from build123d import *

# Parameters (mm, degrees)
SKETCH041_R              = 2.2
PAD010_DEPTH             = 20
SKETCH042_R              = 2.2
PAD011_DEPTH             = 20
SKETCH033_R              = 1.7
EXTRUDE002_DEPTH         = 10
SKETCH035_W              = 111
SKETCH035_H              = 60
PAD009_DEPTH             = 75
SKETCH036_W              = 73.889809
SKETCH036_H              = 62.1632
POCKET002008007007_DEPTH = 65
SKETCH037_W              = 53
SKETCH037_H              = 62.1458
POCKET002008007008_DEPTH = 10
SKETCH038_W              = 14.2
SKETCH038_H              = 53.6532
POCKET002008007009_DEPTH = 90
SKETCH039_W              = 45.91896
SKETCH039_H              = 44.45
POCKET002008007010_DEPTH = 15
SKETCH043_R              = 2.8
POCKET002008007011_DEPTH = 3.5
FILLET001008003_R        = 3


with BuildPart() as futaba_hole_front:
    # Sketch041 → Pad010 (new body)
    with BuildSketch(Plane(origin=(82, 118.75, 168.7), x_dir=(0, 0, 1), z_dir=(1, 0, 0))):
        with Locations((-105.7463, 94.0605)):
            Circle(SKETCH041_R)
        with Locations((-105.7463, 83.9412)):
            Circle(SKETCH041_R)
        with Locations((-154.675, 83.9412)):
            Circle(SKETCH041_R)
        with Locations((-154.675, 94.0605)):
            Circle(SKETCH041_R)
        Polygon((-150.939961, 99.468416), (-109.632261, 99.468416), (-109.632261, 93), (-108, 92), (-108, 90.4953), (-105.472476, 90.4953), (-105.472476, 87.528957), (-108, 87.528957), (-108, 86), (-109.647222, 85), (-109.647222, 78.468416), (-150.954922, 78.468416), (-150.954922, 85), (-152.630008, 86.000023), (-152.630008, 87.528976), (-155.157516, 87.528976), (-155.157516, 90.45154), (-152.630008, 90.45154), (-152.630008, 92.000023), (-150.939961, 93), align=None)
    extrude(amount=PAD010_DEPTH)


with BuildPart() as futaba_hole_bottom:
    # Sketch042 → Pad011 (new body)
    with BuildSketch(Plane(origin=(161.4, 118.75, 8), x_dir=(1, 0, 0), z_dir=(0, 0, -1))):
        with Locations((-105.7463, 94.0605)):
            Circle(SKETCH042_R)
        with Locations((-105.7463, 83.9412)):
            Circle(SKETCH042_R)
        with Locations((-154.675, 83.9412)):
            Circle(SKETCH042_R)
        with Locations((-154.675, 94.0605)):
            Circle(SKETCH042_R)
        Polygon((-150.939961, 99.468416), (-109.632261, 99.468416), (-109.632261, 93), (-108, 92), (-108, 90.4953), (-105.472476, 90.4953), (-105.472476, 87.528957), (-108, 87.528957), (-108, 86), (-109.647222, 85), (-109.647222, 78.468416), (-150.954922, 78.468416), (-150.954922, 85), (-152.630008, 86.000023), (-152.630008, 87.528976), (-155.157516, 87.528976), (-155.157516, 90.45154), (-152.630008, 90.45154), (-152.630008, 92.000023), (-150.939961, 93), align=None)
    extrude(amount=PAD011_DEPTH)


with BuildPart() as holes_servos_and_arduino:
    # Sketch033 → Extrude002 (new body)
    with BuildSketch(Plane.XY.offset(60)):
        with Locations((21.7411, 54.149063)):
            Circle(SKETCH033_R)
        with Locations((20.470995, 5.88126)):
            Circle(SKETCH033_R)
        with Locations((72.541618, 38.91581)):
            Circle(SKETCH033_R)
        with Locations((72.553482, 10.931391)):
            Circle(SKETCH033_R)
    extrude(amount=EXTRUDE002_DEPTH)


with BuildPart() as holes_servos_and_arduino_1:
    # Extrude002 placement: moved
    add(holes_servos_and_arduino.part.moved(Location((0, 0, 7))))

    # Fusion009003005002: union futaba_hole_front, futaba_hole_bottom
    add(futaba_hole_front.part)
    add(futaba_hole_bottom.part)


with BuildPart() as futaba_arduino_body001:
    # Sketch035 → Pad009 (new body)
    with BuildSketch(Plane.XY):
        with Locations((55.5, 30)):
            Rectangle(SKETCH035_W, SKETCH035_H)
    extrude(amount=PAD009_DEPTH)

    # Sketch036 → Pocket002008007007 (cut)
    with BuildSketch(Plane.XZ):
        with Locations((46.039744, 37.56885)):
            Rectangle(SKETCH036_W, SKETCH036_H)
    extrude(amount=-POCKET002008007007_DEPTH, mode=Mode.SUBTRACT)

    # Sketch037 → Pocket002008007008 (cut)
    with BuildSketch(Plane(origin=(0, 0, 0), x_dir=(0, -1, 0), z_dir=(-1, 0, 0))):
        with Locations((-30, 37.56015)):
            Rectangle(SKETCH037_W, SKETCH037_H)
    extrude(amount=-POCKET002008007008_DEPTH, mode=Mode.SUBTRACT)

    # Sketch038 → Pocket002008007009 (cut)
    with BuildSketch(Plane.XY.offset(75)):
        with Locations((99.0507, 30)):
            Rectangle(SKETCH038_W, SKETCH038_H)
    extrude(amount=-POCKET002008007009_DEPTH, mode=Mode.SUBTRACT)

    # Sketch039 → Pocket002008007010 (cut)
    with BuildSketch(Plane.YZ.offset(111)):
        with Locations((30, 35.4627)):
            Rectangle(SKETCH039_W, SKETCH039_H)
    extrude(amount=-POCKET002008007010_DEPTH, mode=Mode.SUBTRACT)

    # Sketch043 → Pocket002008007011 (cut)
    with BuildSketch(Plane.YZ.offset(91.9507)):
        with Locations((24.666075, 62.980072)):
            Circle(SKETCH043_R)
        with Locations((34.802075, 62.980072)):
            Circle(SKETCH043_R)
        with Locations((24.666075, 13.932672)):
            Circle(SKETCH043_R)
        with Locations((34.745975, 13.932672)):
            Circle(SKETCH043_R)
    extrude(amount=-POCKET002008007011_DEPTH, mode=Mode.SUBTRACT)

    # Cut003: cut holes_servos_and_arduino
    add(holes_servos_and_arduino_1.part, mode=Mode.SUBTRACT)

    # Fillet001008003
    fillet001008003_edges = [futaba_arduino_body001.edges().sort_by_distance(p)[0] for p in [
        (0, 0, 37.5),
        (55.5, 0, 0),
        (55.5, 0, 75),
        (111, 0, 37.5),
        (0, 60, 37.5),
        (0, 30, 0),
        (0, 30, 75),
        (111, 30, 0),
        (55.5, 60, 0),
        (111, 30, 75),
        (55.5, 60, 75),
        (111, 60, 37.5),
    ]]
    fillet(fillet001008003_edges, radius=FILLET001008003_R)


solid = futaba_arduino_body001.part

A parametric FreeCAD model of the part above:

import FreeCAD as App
import Part
import Sketcher

V = App.Vector
Q = App.Units.Quantity


def edges_at(feature, points):
    """Names of the edges that pass closest to the given points."""
    edges = feature.Shape.Edges
    near = lambda p: min(range(len(edges)), key=lambda i: edges[i].distToShape(Part.Vertex(*p))[0])
    return sorted({f"Edge{near(p) + 1}" for p in points})

doc = App.newDocument("Part")
body = doc.addObject("PartDesign::Body", "Body")
body.AllowCompound = True

# Sketch on YZ plane
sketch1 = body.newObject("Sketcher::SketchObject", "Sketch")
sketch1.AttachmentSupport = (doc.getObject("YZ_Plane"), [""])
sketch1.MapMode = "FlatFace"
sketch1.AttachmentOffset = App.Placement(V(0, 0, 82), App.Rotation())
sketch1.addGeometry(Part.Circle(V(24.7, 63, 0), V(0, 0, 1), 2.2), False)
sketch1.addGeometry(Part.Circle(V(34.8, 63, 0), V(0, 0, 1), 2.2), False)
sketch1.addGeometry(Part.Circle(V(34.8, 14, 0), V(0, 0, 1), 2.2), False)
sketch1.addGeometry(Part.Circle(V(24.7, 14, 0), V(0, 0, 1), 2.2), False)
sketch1.addGeometry(Part.LineSegment(V(19.3, 59.1, 0), V(19.3, 17.8, 0)), False)
sketch1.addGeometry(Part.LineSegment(V(19.3, 17.8, 0), V(25.8, 17.8, 0)), False)
sketch1.addGeometry(Part.LineSegment(V(25.8, 17.8, 0), V(26.7, 16.1, 0)), False)
sketch1.addGeometry(Part.LineSegment(V(26.7, 16.1, 0), V(28.3, 16.1, 0)), False)
sketch1.addGeometry(Part.LineSegment(V(28.3, 16.1, 0), V(28.3, 13.5, 0)), False)
sketch1.addGeometry(Part.LineSegment(V(28.3, 13.5, 0), V(31.2, 13.5, 0)), False)
sketch1.addGeometry(Part.LineSegment(V(31.2, 13.5, 0), V(31.2, 16.1, 0)), False)
sketch1.addGeometry(Part.LineSegment(V(31.2, 16.1, 0), V(32.7, 16.1, 0)), False)
sketch1.addGeometry(Part.LineSegment(V(32.7, 16.1, 0), V(33.8, 17.7, 0)), False)
sketch1.addGeometry(Part.LineSegment(V(33.8, 17.7, 0), V(40.3, 17.7, 0)), False)
sketch1.addGeometry(Part.LineSegment(V(40.3, 17.7, 0), V(40.3, 59.1, 0)), False)
sketch1.addGeometry(Part.LineSegment(V(40.3, 59.1, 0), V(33.8, 59.1, 0)), False)
sketch1.addGeometry(Part.LineSegment(V(33.8, 59.1, 0), V(32.8, 60.7, 0)), False)
sketch1.addGeometry(Part.LineSegment(V(32.8, 60.7, 0), V(31.2, 60.7, 0)), False)
sketch1.addGeometry(Part.LineSegment(V(31.2, 60.7, 0), V(31.2, 63.2, 0)), False)
sketch1.addGeometry(Part.LineSegment(V(31.2, 63.2, 0), V(28.3, 63.2, 0)), False)
sketch1.addGeometry(Part.LineSegment(V(28.3, 63.2, 0), V(28.3, 60.7, 0)), False)
sketch1.addGeometry(Part.LineSegment(V(28.3, 60.7, 0), V(26.8, 60.7, 0)), False)
sketch1.addGeometry(Part.LineSegment(V(26.8, 60.7, 0), V(25.8, 59.1, 0)), False)
sketch1.addGeometry(Part.LineSegment(V(25.8, 59.1, 0), V(19.3, 59.1, 0)), False)
sketch1.addConstraint(Sketcher.Constraint("Coincident", 4, 2, 5, 1))
sketch1.addConstraint(Sketcher.Constraint("Coincident", 5, 2, 6, 1))
sketch1.addConstraint(Sketcher.Constraint("Coincident", 6, 2, 7, 1))
sketch1.addConstraint(Sketcher.Constraint("Coincident", 7, 2, 8, 1))
sketch1.addConstraint(Sketcher.Constraint("Coincident", 8, 2, 9, 1))
sketch1.addConstraint(Sketcher.Constraint("Coincident", 9, 2, 10, 1))
sketch1.addConstraint(Sketcher.Constraint("Coincident", 10, 2, 11, 1))
sketch1.addConstraint(Sketcher.Constraint("Coincident", 11, 2, 12, 1))
sketch1.addConstraint(Sketcher.Constraint("Coincident", 12, 2, 13, 1))
sketch1.addConstraint(Sketcher.Constraint("Coincident", 13, 2, 14, 1))
sketch1.addConstraint(Sketcher.Constraint("Coincident", 14, 2, 15, 1))
sketch1.addConstraint(Sketcher.Constraint("Coincident", 15, 2, 16, 1))
sketch1.addConstraint(Sketcher.Constraint("Coincident", 16, 2, 17, 1))
sketch1.addConstraint(Sketcher.Constraint("Coincident", 17, 2, 18, 1))
sketch1.addConstraint(Sketcher.Constraint("Coincident", 18, 2, 19, 1))
sketch1.addConstraint(Sketcher.Constraint("Coincident", 19, 2, 20, 1))
sketch1.addConstraint(Sketcher.Constraint("Coincident", 20, 2, 21, 1))
sketch1.addConstraint(Sketcher.Constraint("Coincident", 21, 2, 22, 1))
sketch1.addConstraint(Sketcher.Constraint("Coincident", 22, 2, 23, 1))
sketch1.addConstraint(Sketcher.Constraint("Coincident", 23, 2, 4, 1))
sketch1.addConstraint(Sketcher.Constraint("Vertical", 4))
sketch1.addConstraint(Sketcher.Constraint("Horizontal", 5))
sketch1.addConstraint(Sketcher.Constraint("Horizontal", 7))
sketch1.addConstraint(Sketcher.Constraint("Vertical", 8))
sketch1.addConstraint(Sketcher.Constraint("Horizontal", 9))
sketch1.addConstraint(Sketcher.Constraint("Vertical", 10))
sketch1.addConstraint(Sketcher.Constraint("Horizontal", 11))
sketch1.addConstraint(Sketcher.Constraint("Horizontal", 13))
sketch1.addConstraint(Sketcher.Constraint("Vertical", 14))
sketch1.addConstraint(Sketcher.Constraint("Horizontal", 15))
sketch1.addConstraint(Sketcher.Constraint("Horizontal", 17))
sketch1.addConstraint(Sketcher.Constraint("Vertical", 18))
sketch1.addConstraint(Sketcher.Constraint("Horizontal", 19))
sketch1.addConstraint(Sketcher.Constraint("Vertical", 20))
sketch1.addConstraint(Sketcher.Constraint("Horizontal", 21))
sketch1.addConstraint(Sketcher.Constraint("Horizontal", 23))
sketch1.addConstraint(Sketcher.Constraint("Equal", 0, 1))
sketch1.addConstraint(Sketcher.Constraint("Equal", 1, 2))
sketch1.addConstraint(Sketcher.Constraint("Equal", 2, 3))
sketch1.addConstraint(Sketcher.Constraint("Horizontal", 0, 3, 1, 3))
sketch1.addConstraint(Sketcher.Constraint("Horizontal", 2, 3, 3, 3))
sketch1.addConstraint(Sketcher.Constraint("Horizontal", 7, 2, 10, 2))
sketch1.addConstraint(Sketcher.Constraint("Horizontal", 17, 2, 20, 2))
sketch1.addConstraint(Sketcher.Constraint("Vertical", 1, 3, 2, 3))
sketch1.addConstraint(Sketcher.Constraint("Vertical", 0, 3, 3, 3))
sketch1.addConstraint(Sketcher.Constraint("Vertical", 12, 2, 15, 2))
sketch1.addConstraint(Sketcher.Constraint("Vertical", 5, 2, 22, 2))
sketch1.addConstraint(Sketcher.Constraint("Equal", 4, 14))
sketch1.addConstraint(Sketcher.Constraint("Diameter", 0, Q("4.4 mm")))
sketch1.addConstraint(Sketcher.Constraint("DistanceX", 16, 2, 15, 2, Q("1 mm")))
sketch1.addConstraint(Sketcher.Constraint("DistanceX", 22, 2, 21, 2, Q("1 mm")))
sketch1.addConstraint(Sketcher.Constraint("DistanceY", -1, 1, 16, 2, Q("60.7 mm")))
sketch1.addConstraint(Sketcher.Constraint("DistanceX", -1, 1, 5, 2, Q("25.75 mm")))
sketch1.addConstraint(Sketcher.Constraint("DistanceX", -1, 1, 12, 2, Q("33.75 mm")))
sketch1.addConstraint(Sketcher.Constraint("DistanceX", 21, 2, 21, 1, Q("1.5047 mm")))
sketch1.addConstraint(Sketcher.Constraint("DistanceY", 4, 2, 4, 1, Q("41.3077 mm")))
sketch1.addConstraint(Sketcher.Constraint("DistanceY", -1, 1, 2, 3, Q("14.025 mm")))
sketch1.addConstraint(Sketcher.Constraint("DistanceX", -1, 1, 0, 3, Q("24.6895 mm")))
sketch1.addConstraint(Sketcher.Constraint("DistanceY", -1, 1, 0, 3, Q("62.9537 mm")))
sketch1.addConstraint(Sketcher.Constraint("DistanceX", -1, 1, 1, 3, Q("34.8088 mm")))
sketch1.addConstraint(Sketcher.Constraint("Distance", 22, Q("1.91423 mm")))
sketch1.addConstraint(Sketcher.Constraint("DistanceX", 5, 1, 5, 2, Q("6.468416 mm")))
sketch1.addConstraint(Sketcher.Constraint("DistanceX", 7, 1, 7, 2, Q("1.548483 mm")))
sketch1.addConstraint(Sketcher.Constraint("DistanceX", 9, 1, 9, 2, Q("2.922564 mm")))
sketch1.addConstraint(Sketcher.Constraint("DistanceX", 11, 1, 11, 2, Q("1.528953 mm")))
sketch1.addConstraint(Sketcher.Constraint("DistanceX", 13, 1, 13, 2, Q("6.531584 mm")))
sketch1.addConstraint(Sketcher.Constraint("DistanceX", 17, 2, 17, 1, Q("1.528957 mm")))
sketch1.addConstraint(Sketcher.Constraint("DistanceY", 8, 2, 8, 1, Q("2.527508 mm")))
sketch1.addConstraint(Sketcher.Constraint("DistanceY", 18, 1, 18, 2, Q("2.527524 mm")))
sketch1.addConstraint(Sketcher.Constraint("DistanceY", -1, 1, 6, 2, Q("16.069992 mm")))
sketch1.addConstraint(Sketcher.Constraint("DistanceX", -1, 1, 7, 2, Q("28.29846 mm")))
sketch1.addConstraint(Sketcher.Constraint("DistanceY", -1, 1, 14, 2, Q("59.052778 mm")))
pad1 = body.newObject("PartDesign::Pad", "Pad")
pad1.Profile = sketch1
pad1.Length = 20
body2 = doc.addObject("PartDesign::Body", "Body001")
body2.AllowCompound = True

# Sketch on XY plane
sketch2 = body2.newObject("Sketcher::SketchObject", "Sketch001")
sketch2.AttachmentSupport = (doc.getObject("XY_Plane001"), [""])
sketch2.MapMode = "FlatFace"
sketch2.AttachmentOffset = App.Placement(V(0, 0, 8), App.Rotation())
sketch2.addGeometry(Part.Circle(V(55.7, 24.7, 0), V(0, 0, 1), 2.2), False)
sketch2.addGeometry(Part.Circle(V(55.7, 34.8, 0), V(0, 0, 1), 2.2), False)
sketch2.addGeometry(Part.Circle(V(6.7, 34.8, 0), V(0, 0, 1), 2.2), False)
sketch2.addGeometry(Part.Circle(V(6.7, 24.7, 0), V(0, 0, 1), 2.2), False)
sketch2.addGeometry(Part.LineSegment(V(51.8, 19.3, 0), V(10.5, 19.3, 0)), False)
sketch2.addGeometry(Part.LineSegment(V(10.5, 19.3, 0), V(10.5, 25.8, 0)), False)
sketch2.addGeometry(Part.LineSegment(V(10.5, 25.8, 0), V(8.8, 26.7, 0)), False)
sketch2.addGeometry(Part.LineSegment(V(8.8, 26.7, 0), V(8.8, 28.3, 0)), False)
sketch2.addGeometry(Part.LineSegment(V(8.8, 28.3, 0), V(6.2, 28.3, 0)), False)
sketch2.addGeometry(Part.LineSegment(V(6.2, 28.3, 0), V(6.2, 31.2, 0)), False)
sketch2.addGeometry(Part.LineSegment(V(6.2, 31.2, 0), V(8.8, 31.2, 0)), False)
sketch2.addGeometry(Part.LineSegment(V(8.8, 31.2, 0), V(8.8, 32.7, 0)), False)
sketch2.addGeometry(Part.LineSegment(V(8.8, 32.7, 0), V(10.4, 33.8, 0)), False)
sketch2.addGeometry(Part.LineSegment(V(10.4, 33.8, 0), V(10.4, 40.3, 0)), False)
sketch2.addGeometry(Part.LineSegment(V(10.4, 40.3, 0), V(51.8, 40.3, 0)), False)
sketch2.addGeometry(Part.LineSegment(V(51.8, 40.3, 0), V(51.8, 33.8, 0)), False)
sketch2.addGeometry(Part.LineSegment(V(51.8, 33.8, 0), V(53.4, 32.8, 0)), False)
sketch2.addGeometry(Part.LineSegment(V(53.4, 32.8, 0), V(53.4, 31.2, 0)), False)
sketch2.addGeometry(Part.LineSegment(V(53.4, 31.2, 0), V(55.9, 31.2, 0)), False)
sketch2.addGeometry(Part.LineSegment(V(55.9, 31.2, 0), V(55.9, 28.3, 0)), False)
sketch2.addGeometry(Part.LineSegment(V(55.9, 28.3, 0), V(53.4, 28.3, 0)), False)
sketch2.addGeometry(Part.LineSegment(V(53.4, 28.3, 0), V(53.4, 26.8, 0)), False)
sketch2.addGeometry(Part.LineSegment(V(53.4, 26.8, 0), V(51.8, 25.8, 0)), False)
sketch2.addGeometry(Part.LineSegment(V(51.8, 25.8, 0), V(51.8, 19.3, 0)), False)
sketch2.addConstraint(Sketcher.Constraint("Coincident", 4, 2, 5, 1))
sketch2.addConstraint(Sketcher.Constraint("Coincident", 5, 2, 6, 1))
sketch2.addConstraint(Sketcher.Constraint("Coincident", 6, 2, 7, 1))
sketch2.addConstraint(Sketcher.Constraint("Coincident", 7, 2, 8, 1))
sketch2.addConstraint(Sketcher.Constraint("Coincident", 8, 2, 9, 1))
sketch2.addConstraint(Sketcher.Constraint("Coincident", 9, 2, 10, 1))
sketch2.addConstraint(Sketcher.Constraint("Coincident", 10, 2, 11, 1))
sketch2.addConstraint(Sketcher.Constraint("Coincident", 11, 2, 12, 1))
sketch2.addConstraint(Sketcher.Constraint("Coincident", 12, 2, 13, 1))
sketch2.addConstraint(Sketcher.Constraint("Coincident", 13, 2, 14, 1))
sketch2.addConstraint(Sketcher.Constraint("Coincident", 14, 2, 15, 1))
sketch2.addConstraint(Sketcher.Constraint("Coincident", 15, 2, 16, 1))
sketch2.addConstraint(Sketcher.Constraint("Coincident", 16, 2, 17, 1))
sketch2.addConstraint(Sketcher.Constraint("Coincident", 17, 2, 18, 1))
sketch2.addConstraint(Sketcher.Constraint("Coincident", 18, 2, 19, 1))
sketch2.addConstraint(Sketcher.Constraint("Coincident", 19, 2, 20, 1))
sketch2.addConstraint(Sketcher.Constraint("Coincident", 20, 2, 21, 1))
sketch2.addConstraint(Sketcher.Constraint("Coincident", 21, 2, 22, 1))
sketch2.addConstraint(Sketcher.Constraint("Coincident", 22, 2, 23, 1))
sketch2.addConstraint(Sketcher.Constraint("Coincident", 23, 2, 4, 1))
sketch2.addConstraint(Sketcher.Constraint("Horizontal", 4))
sketch2.addConstraint(Sketcher.Constraint("Vertical", 5))
sketch2.addConstraint(Sketcher.Constraint("Vertical", 7))
sketch2.addConstraint(Sketcher.Constraint("Horizontal", 8))
sketch2.addConstraint(Sketcher.Constraint("Vertical", 9))
sketch2.addConstraint(Sketcher.Constraint("Horizontal", 10))
sketch2.addConstraint(Sketcher.Constraint("Vertical", 11))
sketch2.addConstraint(Sketcher.Constraint("Vertical", 13))
sketch2.addConstraint(Sketcher.Constraint("Horizontal", 14))
sketch2.addConstraint(Sketcher.Constraint("Vertical", 15))
sketch2.addConstraint(Sketcher.Constraint("Vertical", 17))
sketch2.addConstraint(Sketcher.Constraint("Horizontal", 18))
sketch2.addConstraint(Sketcher.Constraint("Vertical", 19))
sketch2.addConstraint(Sketcher.Constraint("Horizontal", 20))
sketch2.addConstraint(Sketcher.Constraint("Vertical", 21))
sketch2.addConstraint(Sketcher.Constraint("Vertical", 23))
sketch2.addConstraint(Sketcher.Constraint("Equal", 0, 1))
sketch2.addConstraint(Sketcher.Constraint("Equal", 1, 2))
sketch2.addConstraint(Sketcher.Constraint("Equal", 2, 3))
sketch2.addConstraint(Sketcher.Constraint("Horizontal", 1, 3, 2, 3))
sketch2.addConstraint(Sketcher.Constraint("Horizontal", 0, 3, 3, 3))
sketch2.addConstraint(Sketcher.Constraint("Horizontal", 12, 2, 15, 2))
sketch2.addConstraint(Sketcher.Constraint("Horizontal", 5, 2, 22, 2))
sketch2.addConstraint(Sketcher.Constraint("Vertical", 0, 3, 1, 3))
sketch2.addConstraint(Sketcher.Constraint("Vertical", 2, 3, 3, 3))
sketch2.addConstraint(Sketcher.Constraint("Vertical", 7, 2, 10, 2))
sketch2.addConstraint(Sketcher.Constraint("Vertical", 17, 2, 20, 2))
sketch2.addConstraint(Sketcher.Constraint("Equal", 4, 14))
sketch2.addConstraint(Sketcher.Constraint("Diameter", 0, Q("4.4 mm")))
sketch2.addConstraint(Sketcher.Constraint("DistanceY", 16, 2, 15, 2, Q("1 mm")))
sketch2.addConstraint(Sketcher.Constraint("DistanceY", 22, 2, 21, 2, Q("1 mm")))
sketch2.addConstraint(Sketcher.Constraint("DistanceX", -1, 1, 16, 2, Q("53.4 mm")))
sketch2.addConstraint(Sketcher.Constraint("DistanceY", -1, 1, 5, 2, Q("25.75 mm")))
sketch2.addConstraint(Sketcher.Constraint("DistanceY", -1, 1, 12, 2, Q("33.75 mm")))
sketch2.addConstraint(Sketcher.Constraint("DistanceX", 4, 2, 4, 1, Q("41.3077 mm")))
sketch2.addConstraint(Sketcher.Constraint("DistanceY", 21, 2, 21, 1, Q("1.5047 mm")))
sketch2.addConstraint(Sketcher.Constraint("DistanceX", -1, 1, 2, 3, Q("6.725 mm")))
sketch2.addConstraint(Sketcher.Constraint("DistanceX", 8, 2, 8, 1, Q("2.527508 mm")))
sketch2.addConstraint(Sketcher.Constraint("DistanceX", -1, 1, 0, 3, Q("55.6537 mm")))
sketch2.addConstraint(Sketcher.Constraint("DistanceY", -1, 1, 0, 3, Q("24.6895 mm")))
sketch2.addConstraint(Sketcher.Constraint("DistanceY", -1, 1, 1, 3, Q("34.8088 mm")))
sketch2.addConstraint(Sketcher.Constraint("Distance", 22, Q("1.91423 mm")))
sketch2.addConstraint(Sketcher.Constraint("DistanceX", 18, 1, 18, 2, Q("2.527524 mm")))
sketch2.addConstraint(Sketcher.Constraint("DistanceY", 5, 1, 5, 2, Q("6.468416 mm")))
sketch2.addConstraint(Sketcher.Constraint("DistanceY", 7, 1, 7, 2, Q("1.548483 mm")))
sketch2.addConstraint(Sketcher.Constraint("DistanceY", 9, 1, 9, 2, Q("2.922564 mm")))
sketch2.addConstraint(Sketcher.Constraint("DistanceY", 11, 1, 11, 2, Q("1.528953 mm")))
sketch2.addConstraint(Sketcher.Constraint("DistanceY", 13, 1, 13, 2, Q("6.531584 mm")))
sketch2.addConstraint(Sketcher.Constraint("DistanceY", 17, 2, 17, 1, Q("1.528957 mm")))
sketch2.addConstraint(Sketcher.Constraint("DistanceY", -1, 1, 7, 2, Q("28.29846 mm")))
sketch2.addConstraint(Sketcher.Constraint("DistanceX", 2, 3, 12, 2, Q("3.720078 mm")))
sketch2.addConstraint(Sketcher.Constraint("Distance", 6, Q("1.963724 mm")))
pad2 = body2.newObject("PartDesign::Pad", "Pad001")
pad2.Profile = sketch2
pad2.Length = 20
pad2.Reversed = True
body3 = doc.addObject("PartDesign::Body", "Body002")
body3.AllowCompound = True

# Sketch on XY plane
sketch3 = body3.newObject("Sketcher::SketchObject", "Sketch002")
sketch3.AttachmentSupport = (doc.getObject("XY_Plane002"), [""])
sketch3.MapMode = "FlatFace"
sketch3.AttachmentOffset = App.Placement(V(0, 0, 60), App.Rotation())
sketch3.addGeometry(Part.Circle(V(21.7, 54.1, 0), V(0, 0, 1), 1.7), False)
sketch3.addGeometry(Part.Circle(V(20.5, 5.9, 0), V(0, 0, 1), 1.7), False)
sketch3.addGeometry(Part.Circle(V(72.5, 38.9, 0), V(0, 0, 1), 1.7), False)
sketch3.addGeometry(Part.Circle(V(72.6, 10.9, 0), V(0, 0, 1), 1.7), False)
sketch3.addConstraint(Sketcher.Constraint("Equal", 0, 1))
sketch3.addConstraint(Sketcher.Constraint("Equal", 1, 2))
sketch3.addConstraint(Sketcher.Constraint("Equal", 2, 3))
sketch3.addConstraint(Sketcher.Constraint("Diameter", 0, Q("3.4 mm")))
sketch3.addConstraint(Sketcher.Constraint("DistanceX", -1, 1, 0, 3, Q("21.7411 mm")))
sketch3.addConstraint(Sketcher.Constraint("DistanceY", -1, 1, 1, 3, Q("5.88126 mm")))
sketch3.addConstraint(Sketcher.Constraint("DistanceX", -1, 1, 2, 3, Q("72.541618 mm")))
sketch3.addConstraint(Sketcher.Constraint("DistanceY", -1, 1, 2, 3, Q("38.91581 mm")))
sketch3.addConstraint(Sketcher.Constraint("DistanceY", -1, 1, 3, 3, Q("10.931391 mm")))
sketch3.addConstraint(Sketcher.Constraint("DistanceY", -1, 1, 0, 3, Q("54.149063 mm")))
sketch3.addConstraint(Sketcher.Constraint("DistanceX", -1, 1, 1, 3, Q("20.470995 mm")))
sketch3.addConstraint(Sketcher.Constraint("DistanceX", -1, 1, 3, 3, Q("72.553482 mm")))
pad3 = body3.newObject("PartDesign::Pad", "Pad002")
pad3.Profile = sketch3
pad3.Length = 10
body4 = doc.addObject("PartDesign::Body", "Body003")
body4.AllowCompound = True
doc.recompute()

body3.Placement = App.Placement(V(0, 0, 7), App.Rotation(V(0, 0, 1), 0))
boolean = body4.newObject("PartDesign::Boolean", "Boolean")
boolean.Type = "Fuse"
boolean.addObjects([body3])
doc.recompute()

boolean2 = body4.newObject("PartDesign::Boolean", "Boolean001")
boolean2.Type = "Fuse"
boolean2.addObjects([body])
doc.recompute()

boolean3 = body4.newObject("PartDesign::Boolean", "Boolean002")
boolean3.Type = "Fuse"
boolean3.addObjects([body2])
body5 = doc.addObject("PartDesign::Body", "Body004")

# Sketch on XY plane
sketch4 = body5.newObject("Sketcher::SketchObject", "Sketch003")
sketch4.AttachmentSupport = (doc.getObject("XY_Plane004"), [""])
sketch4.MapMode = "FlatFace"
sketch4.addGeometry(Part.LineSegment(V(0, 60, 0), V(0, 0, 0)), False)
sketch4.addGeometry(Part.LineSegment(V(0, 0, 0), V(111, 0, 0)), False)
sketch4.addGeometry(Part.LineSegment(V(111, 0, 0), V(111, 60, 0)), False)
sketch4.addGeometry(Part.LineSegment(V(111, 60, 0), V(0, 60, 0)), False)
sketch4.addConstraint(Sketcher.Constraint("Coincident", 0, 2, 1, 1))
sketch4.addConstraint(Sketcher.Constraint("Coincident", 1, 2, 2, 1))
sketch4.addConstraint(Sketcher.Constraint("Coincident", 2, 2, 3, 1))
sketch4.addConstraint(Sketcher.Constraint("Coincident", 3, 2, 0, 1))
sketch4.addConstraint(Sketcher.Constraint("Vertical", 0))
sketch4.addConstraint(Sketcher.Constraint("Horizontal", 1))
sketch4.addConstraint(Sketcher.Constraint("Vertical", 2))
sketch4.addConstraint(Sketcher.Constraint("Horizontal", 3))
sketch4.addConstraint(Sketcher.Constraint("Coincident", 0, 2, -1, 1))
sketch4.addConstraint(Sketcher.Constraint("DistanceX", 1, 1, 1, 2, Q("111 mm")))
sketch4.addConstraint(Sketcher.Constraint("DistanceY", 0, 2, 0, 1, Q("60 mm")))
pad4 = body5.newObject("PartDesign::Pad", "Pad003")
pad4.Profile = sketch4
pad4.Length = 75

# Sketch on XZ plane
sketch5 = body5.newObject("Sketcher::SketchObject", "Sketch004")
sketch5.AttachmentSupport = (doc.getObject("XZ_Plane004"), [""])
sketch5.MapMode = "FlatFace"
sketch5.addGeometry(Part.LineSegment(V(9, 69, 0), V(9, 6, 0)), False)
sketch5.addGeometry(Part.LineSegment(V(9, 6, 0), V(83, 6, 0)), False)
sketch5.addGeometry(Part.LineSegment(V(83, 6, 0), V(83, 69, 0)), False)
sketch5.addGeometry(Part.LineSegment(V(83, 69, 0), V(9, 69, 0)), False)
sketch5.addConstraint(Sketcher.Constraint("Coincident", 0, 2, 1, 1))
sketch5.addConstraint(Sketcher.Constraint("Coincident", 1, 2, 2, 1))
sketch5.addConstraint(Sketcher.Constraint("Coincident", 2, 2, 3, 1))
sketch5.addConstraint(Sketcher.Constraint("Coincident", 3, 2, 0, 1))
sketch5.addConstraint(Sketcher.Constraint("Vertical", 0))
sketch5.addConstraint(Sketcher.Constraint("Horizontal", 1))
sketch5.addConstraint(Sketcher.Constraint("Vertical", 2))
sketch5.addConstraint(Sketcher.Constraint("Horizontal", 3))
sketch5.addConstraint(Sketcher.Constraint("DistanceY", 0, 2, 0, 1, Q("62.1632 mm")))
sketch5.addConstraint(Sketcher.Constraint("DistanceX", 1, 1, 1, 2, Q("73.889809 mm")))
sketch5.addConstraint(Sketcher.Constraint("DistanceX", -1, 1, 0, 2, Q("9.09484 mm")))
sketch5.addConstraint(Sketcher.Constraint("DistanceY", -1, 1, 0, 2, Q("6.48725 mm")))
pocket1 = body5.newObject("PartDesign::Pocket", "Pocket")
pocket1.Profile = sketch5
pocket1.Length = 65

# Sketch on YZ plane
sketch6 = body5.newObject("Sketcher::SketchObject", "Sketch005")
sketch6.AttachmentSupport = (doc.getObject("YZ_Plane004"), [""])
sketch6.MapMode = "FlatFace"
sketch6.addGeometry(Part.LineSegment(V(56, 69, 0), V(56, 6, 0)), False)
sketch6.addGeometry(Part.LineSegment(V(56, 6, 0), V(4, 6, 0)), False)
sketch6.addGeometry(Part.LineSegment(V(4, 6, 0), V(4, 69, 0)), False)
sketch6.addGeometry(Part.LineSegment(V(4, 69, 0), V(56, 69, 0)), False)
sketch6.addConstraint(Sketcher.Constraint("Coincident", 0, 2, 1, 1))
sketch6.addConstraint(Sketcher.Constraint("Coincident", 1, 2, 2, 1))
sketch6.addConstraint(Sketcher.Constraint("Coincident", 2, 2, 3, 1))
sketch6.addConstraint(Sketcher.Constraint("Coincident", 3, 2, 0, 1))
sketch6.addConstraint(Sketcher.Constraint("Vertical", 0))
sketch6.addConstraint(Sketcher.Constraint("Horizontal", 1))
sketch6.addConstraint(Sketcher.Constraint("Vertical", 2))
sketch6.addConstraint(Sketcher.Constraint("Horizontal", 3))
sketch6.addConstraint(Sketcher.Constraint("DistanceX", 1, 2, 1, 1, Q("53 mm")))
sketch6.addConstraint(Sketcher.Constraint("DistanceX", -1, 1, 0, 2, Q("56.5 mm")))
sketch6.addConstraint(Sketcher.Constraint("DistanceY", 0, 2, 0, 1, Q("62.1458 mm")))
sketch6.addConstraint(Sketcher.Constraint("DistanceY", -1, 1, 0, 2, Q("6.48725 mm")))
pocket2 = body5.newObject("PartDesign::Pocket", "Pocket001")
pocket2.Profile = sketch6
pocket2.Length = 10
pocket2.Reversed = True

# Sketch on XY plane
sketch7 = body5.newObject("Sketcher::SketchObject", "Sketch006")
sketch7.AttachmentSupport = (doc.getObject("XY_Plane004"), [""])
sketch7.MapMode = "FlatFace"
sketch7.AttachmentOffset = App.Placement(V(0, 0, 75), App.Rotation())
sketch7.addGeometry(Part.LineSegment(V(92, 57, 0), V(92, 3, 0)), False)
sketch7.addGeometry(Part.LineSegment(V(92, 3, 0), V(106, 3, 0)), False)
sketch7.addGeometry(Part.LineSegment(V(106, 3, 0), V(106, 57, 0)), False)
sketch7.addGeometry(Part.LineSegment(V(106, 57, 0), V(92, 57, 0)), False)
sketch7.addConstraint(Sketcher.Constraint("Coincident", 0, 2, 1, 1))
sketch7.addConstraint(Sketcher.Constraint("Coincident", 1, 2, 2, 1))
sketch7.addConstraint(Sketcher.Constraint("Coincident", 2, 2, 3, 1))
sketch7.addConstraint(Sketcher.Constraint("Coincident", 3, 2, 0, 1))
sketch7.addConstraint(Sketcher.Constraint("Vertical", 0))
sketch7.addConstraint(Sketcher.Constraint("Horizontal", 1))
sketch7.addConstraint(Sketcher.Constraint("Vertical", 2))
sketch7.addConstraint(Sketcher.Constraint("Horizontal", 3))
sketch7.addConstraint(Sketcher.Constraint("DistanceX", 1, 1, 1, 2, Q("14.2 mm")))
sketch7.addConstraint(Sketcher.Constraint("DistanceY", 0, 2, 0, 1, Q("53.6532 mm")))
sketch7.addConstraint(Sketcher.Constraint("DistanceX", -1, 1, 0, 2, Q("91.9507 mm")))
sketch7.addConstraint(Sketcher.Constraint("DistanceY", -1, 1, 0, 2, Q("3.1734 mm")))
pocket3 = body5.newObject("PartDesign::Pocket", "Pocket002")
pocket3.Profile = sketch7
pocket3.Length = 90

# Sketch on YZ plane
sketch8 = body5.newObject("Sketcher::SketchObject", "Sketch007")
sketch8.AttachmentSupport = (doc.getObject("YZ_Plane004"), [""])
sketch8.MapMode = "FlatFace"
sketch8.AttachmentOffset = App.Placement(V(0, 0, 111), App.Rotation())
sketch8.addGeometry(Part.LineSegment(V(7, 58, 0), V(7, 13, 0)), False)
sketch8.addGeometry(Part.LineSegment(V(7, 13, 0), V(53, 13, 0)), False)
sketch8.addGeometry(Part.LineSegment(V(53, 13, 0), V(53, 58, 0)), False)
sketch8.addGeometry(Part.LineSegment(V(53, 58, 0), V(7, 58, 0)), False)
sketch8.addConstraint(Sketcher.Constraint("Coincident", 0, 2, 1, 1))
sketch8.addConstraint(Sketcher.Constraint("Coincident", 1, 2, 2, 1))
sketch8.addConstraint(Sketcher.Constraint("Coincident", 2, 2, 3, 1))
sketch8.addConstraint(Sketcher.Constraint("Coincident", 3, 2, 0, 1))
sketch8.addConstraint(Sketcher.Constraint("Vertical", 0))
sketch8.addConstraint(Sketcher.Constraint("Horizontal", 1))
sketch8.addConstraint(Sketcher.Constraint("Vertical", 2))
sketch8.addConstraint(Sketcher.Constraint("Horizontal", 3))
sketch8.addConstraint(Sketcher.Constraint("DistanceY", 0, 2, 0, 1, Q("44.45 mm")))
sketch8.addConstraint(Sketcher.Constraint("DistanceX", 1, 1, 1, 2, Q("45.91896 mm")))
sketch8.addConstraint(Sketcher.Constraint("DistanceY", -1, 1, 0, 2, Q("13.2377 mm")))
sketch8.addConstraint(Sketcher.Constraint("DistanceX", -1, 1, 0, 2, Q("7.04052 mm")))
pocket4 = body5.newObject("PartDesign::Pocket", "Pocket003")
pocket4.Profile = sketch8
pocket4.Length = 15

# Sketch on YZ plane
sketch9 = body5.newObject("Sketcher::SketchObject", "Sketch008")
sketch9.AttachmentSupport = (doc.getObject("YZ_Plane004"), [""])
sketch9.MapMode = "FlatFace"
sketch9.AttachmentOffset = App.Placement(V(0, 0, 91.9507), App.Rotation())
sketch9.addGeometry(Part.Circle(V(24.7, 63, 0), V(0, 0, 1), 2.8), False)
sketch9.addGeometry(Part.Circle(V(34.8, 63, 0), V(0, 0, 1), 2.8), False)
sketch9.addGeometry(Part.Circle(V(24.7, 13.9, 0), V(0, 0, 1), 2.8), False)
sketch9.addGeometry(Part.Circle(V(34.7, 13.9, 0), V(0, 0, 1), 2.8), False)
sketch9.addConstraint(Sketcher.Constraint("Equal", 0, 1))
sketch9.addConstraint(Sketcher.Constraint("Equal", 1, 2))
sketch9.addConstraint(Sketcher.Constraint("Equal", 2, 3))
sketch9.addConstraint(Sketcher.Constraint("Horizontal", 0, 3, 1, 3))
sketch9.addConstraint(Sketcher.Constraint("Horizontal", 2, 3, 3, 3))
sketch9.addConstraint(Sketcher.Constraint("Vertical", 0, 3, 2, 3))
sketch9.addConstraint(Sketcher.Constraint("Diameter", 0, Q("5.6 mm")))
sketch9.addConstraint(Sketcher.Constraint("DistanceX", 0, 3, 1, 3, Q("10.136 mm")))
sketch9.addConstraint(Sketcher.Constraint("DistanceY", 2, 3, 0, 3, Q("49.0474 mm")))
sketch9.addConstraint(Sketcher.Constraint("DistanceX", 2, 3, 3, 3, Q("10.0799 mm")))
sketch9.addConstraint(Sketcher.Constraint("DistanceX", -1, 1, 0, 3, Q("24.666075 mm")))
sketch9.addConstraint(Sketcher.Constraint("DistanceY", -1, 1, 0, 3, Q("62.980072 mm")))
pocket5 = body5.newObject("PartDesign::Pocket", "Pocket004")
pocket5.Profile = sketch9
pocket5.Length = 3.5
doc.recompute()

boolean4 = body5.newObject("PartDesign::Boolean", "Boolean003")
boolean4.Type = "Cut"
boolean4.addObjects([body4])
doc.recompute()

fillet = body5.newObject("PartDesign::Fillet", "Fillet")
fillet.Base = (boolean4, edges_at(boolean4, [
    (0, 0, 37.5),
    (55.5, 0, 0),
    (55.5, 0, 75),
    (111, 0, 37.5),
    (0, 60, 37.5),
    (0, 30, 0),
    (0, 30, 75),
    (111, 30, 0),
    (55.5, 60, 0),
    (111, 30, 75),
    (55.5, 60, 75),
    (111, 60, 37.5),
]))
fillet.Radius = 3

doc.recompute()
